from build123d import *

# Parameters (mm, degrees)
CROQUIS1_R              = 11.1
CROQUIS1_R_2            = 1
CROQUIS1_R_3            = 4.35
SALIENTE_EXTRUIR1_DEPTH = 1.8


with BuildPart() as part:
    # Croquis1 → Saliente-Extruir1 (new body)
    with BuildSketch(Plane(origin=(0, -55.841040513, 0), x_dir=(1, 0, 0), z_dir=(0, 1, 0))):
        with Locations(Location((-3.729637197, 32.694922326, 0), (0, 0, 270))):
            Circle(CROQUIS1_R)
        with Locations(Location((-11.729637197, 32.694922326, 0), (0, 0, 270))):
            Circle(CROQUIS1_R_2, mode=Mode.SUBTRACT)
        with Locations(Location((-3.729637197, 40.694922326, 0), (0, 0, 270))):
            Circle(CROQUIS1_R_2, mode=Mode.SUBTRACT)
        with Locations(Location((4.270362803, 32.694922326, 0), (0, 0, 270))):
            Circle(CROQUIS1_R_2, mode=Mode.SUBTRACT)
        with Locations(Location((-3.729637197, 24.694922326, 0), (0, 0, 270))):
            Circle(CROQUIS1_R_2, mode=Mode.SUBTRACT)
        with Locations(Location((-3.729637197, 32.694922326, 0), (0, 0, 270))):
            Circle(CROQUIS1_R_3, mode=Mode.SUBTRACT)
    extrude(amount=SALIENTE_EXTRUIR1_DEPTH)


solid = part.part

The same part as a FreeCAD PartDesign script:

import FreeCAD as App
import Part
import Sketcher

V = App.Vector

doc = App.newDocument("Part")
body = doc.addObject("PartDesign::Body", "Body")

# Sketch on XZ plane
sketch1 = doc.addObject("Sketcher::SketchObject", "Sketch")
body.addObject(sketch1)
sketch1.AttachmentSupport = (doc.XZ_Plane, [""])
sketch1.MapMode = "FlatFace"
sketch1.AttachmentOffset = App.Placement(V(0, 0, 55.841041), App.Rotation())
sketch1.addGeometry([
    Part.Circle(V(-3.729637, -32.694922, 0), V(0, 0, 1), 11.1),  # 0
    Part.Circle(V(-3.729637, -40.694922, 0), V(0, 0, 1), 1),  # 1
    Part.Circle(V(-11.729637, -32.694922, 0), V(0, 0, 1), 1),  # 2
    Part.Circle(V(-3.729637, -32.694922, 0), V(0, 0, 1), 4.35),  # 3
    Part.Circle(V(-3.729637, -24.694922, 0), V(0, 0, 1), 1),  # 4
    Part.Circle(V(4.270363, -32.694922, 0), V(0, 0, 1), 1),  # 5
], False)
sketch1.addConstraint([
    Sketcher.Constraint("Coincident", 3, 3, 0, 3),
    Sketcher.Constraint("Equal", 1, 2),
    Sketcher.Constraint("Equal", 2, 4),
    Sketcher.Constraint("Equal", 4, 5),
    Sketcher.Constraint("Horizontal", 0, 3, 2, 3),
    Sketcher.Constraint("Horizontal", 3, 3, 5, 3),
    Sketcher.Constraint("Vertical", 0, 3, 1, 3),
    Sketcher.Constraint("Vertical", 3, 3, 4, 3),
    Sketcher.Constraint("Diameter", 1, 2.0),
    Sketcher.Constraint("Diameter", 0, 22.2),
    Sketcher.Constraint("Diameter", 3, 8.7),
    Sketcher.Constraint("DistanceY", 1, 3, 0, 3, 8.0),
    Sketcher.Constraint("DistanceX", 2, 3, 0, 3, 8.0),
    Sketcher.Constraint("DistanceY", 0, 3, 4, 3, 8.0),
    Sketcher.Constraint("DistanceX", 0, 3, 5, 3, 8.0),
    Sketcher.Constraint("DistanceX", 0, 3, -1, 1, 3.729637),
    Sketcher.Constraint("DistanceY", 0, 3, -1, 1, 32.694922),
])
pad1 = doc.addObject("PartDesign::Pad", "Pad")
body.addObject(pad1)
pad1.Profile = sketch1
pad1.Length = 1.8
pad1.Reversed = True

doc.recompute()
